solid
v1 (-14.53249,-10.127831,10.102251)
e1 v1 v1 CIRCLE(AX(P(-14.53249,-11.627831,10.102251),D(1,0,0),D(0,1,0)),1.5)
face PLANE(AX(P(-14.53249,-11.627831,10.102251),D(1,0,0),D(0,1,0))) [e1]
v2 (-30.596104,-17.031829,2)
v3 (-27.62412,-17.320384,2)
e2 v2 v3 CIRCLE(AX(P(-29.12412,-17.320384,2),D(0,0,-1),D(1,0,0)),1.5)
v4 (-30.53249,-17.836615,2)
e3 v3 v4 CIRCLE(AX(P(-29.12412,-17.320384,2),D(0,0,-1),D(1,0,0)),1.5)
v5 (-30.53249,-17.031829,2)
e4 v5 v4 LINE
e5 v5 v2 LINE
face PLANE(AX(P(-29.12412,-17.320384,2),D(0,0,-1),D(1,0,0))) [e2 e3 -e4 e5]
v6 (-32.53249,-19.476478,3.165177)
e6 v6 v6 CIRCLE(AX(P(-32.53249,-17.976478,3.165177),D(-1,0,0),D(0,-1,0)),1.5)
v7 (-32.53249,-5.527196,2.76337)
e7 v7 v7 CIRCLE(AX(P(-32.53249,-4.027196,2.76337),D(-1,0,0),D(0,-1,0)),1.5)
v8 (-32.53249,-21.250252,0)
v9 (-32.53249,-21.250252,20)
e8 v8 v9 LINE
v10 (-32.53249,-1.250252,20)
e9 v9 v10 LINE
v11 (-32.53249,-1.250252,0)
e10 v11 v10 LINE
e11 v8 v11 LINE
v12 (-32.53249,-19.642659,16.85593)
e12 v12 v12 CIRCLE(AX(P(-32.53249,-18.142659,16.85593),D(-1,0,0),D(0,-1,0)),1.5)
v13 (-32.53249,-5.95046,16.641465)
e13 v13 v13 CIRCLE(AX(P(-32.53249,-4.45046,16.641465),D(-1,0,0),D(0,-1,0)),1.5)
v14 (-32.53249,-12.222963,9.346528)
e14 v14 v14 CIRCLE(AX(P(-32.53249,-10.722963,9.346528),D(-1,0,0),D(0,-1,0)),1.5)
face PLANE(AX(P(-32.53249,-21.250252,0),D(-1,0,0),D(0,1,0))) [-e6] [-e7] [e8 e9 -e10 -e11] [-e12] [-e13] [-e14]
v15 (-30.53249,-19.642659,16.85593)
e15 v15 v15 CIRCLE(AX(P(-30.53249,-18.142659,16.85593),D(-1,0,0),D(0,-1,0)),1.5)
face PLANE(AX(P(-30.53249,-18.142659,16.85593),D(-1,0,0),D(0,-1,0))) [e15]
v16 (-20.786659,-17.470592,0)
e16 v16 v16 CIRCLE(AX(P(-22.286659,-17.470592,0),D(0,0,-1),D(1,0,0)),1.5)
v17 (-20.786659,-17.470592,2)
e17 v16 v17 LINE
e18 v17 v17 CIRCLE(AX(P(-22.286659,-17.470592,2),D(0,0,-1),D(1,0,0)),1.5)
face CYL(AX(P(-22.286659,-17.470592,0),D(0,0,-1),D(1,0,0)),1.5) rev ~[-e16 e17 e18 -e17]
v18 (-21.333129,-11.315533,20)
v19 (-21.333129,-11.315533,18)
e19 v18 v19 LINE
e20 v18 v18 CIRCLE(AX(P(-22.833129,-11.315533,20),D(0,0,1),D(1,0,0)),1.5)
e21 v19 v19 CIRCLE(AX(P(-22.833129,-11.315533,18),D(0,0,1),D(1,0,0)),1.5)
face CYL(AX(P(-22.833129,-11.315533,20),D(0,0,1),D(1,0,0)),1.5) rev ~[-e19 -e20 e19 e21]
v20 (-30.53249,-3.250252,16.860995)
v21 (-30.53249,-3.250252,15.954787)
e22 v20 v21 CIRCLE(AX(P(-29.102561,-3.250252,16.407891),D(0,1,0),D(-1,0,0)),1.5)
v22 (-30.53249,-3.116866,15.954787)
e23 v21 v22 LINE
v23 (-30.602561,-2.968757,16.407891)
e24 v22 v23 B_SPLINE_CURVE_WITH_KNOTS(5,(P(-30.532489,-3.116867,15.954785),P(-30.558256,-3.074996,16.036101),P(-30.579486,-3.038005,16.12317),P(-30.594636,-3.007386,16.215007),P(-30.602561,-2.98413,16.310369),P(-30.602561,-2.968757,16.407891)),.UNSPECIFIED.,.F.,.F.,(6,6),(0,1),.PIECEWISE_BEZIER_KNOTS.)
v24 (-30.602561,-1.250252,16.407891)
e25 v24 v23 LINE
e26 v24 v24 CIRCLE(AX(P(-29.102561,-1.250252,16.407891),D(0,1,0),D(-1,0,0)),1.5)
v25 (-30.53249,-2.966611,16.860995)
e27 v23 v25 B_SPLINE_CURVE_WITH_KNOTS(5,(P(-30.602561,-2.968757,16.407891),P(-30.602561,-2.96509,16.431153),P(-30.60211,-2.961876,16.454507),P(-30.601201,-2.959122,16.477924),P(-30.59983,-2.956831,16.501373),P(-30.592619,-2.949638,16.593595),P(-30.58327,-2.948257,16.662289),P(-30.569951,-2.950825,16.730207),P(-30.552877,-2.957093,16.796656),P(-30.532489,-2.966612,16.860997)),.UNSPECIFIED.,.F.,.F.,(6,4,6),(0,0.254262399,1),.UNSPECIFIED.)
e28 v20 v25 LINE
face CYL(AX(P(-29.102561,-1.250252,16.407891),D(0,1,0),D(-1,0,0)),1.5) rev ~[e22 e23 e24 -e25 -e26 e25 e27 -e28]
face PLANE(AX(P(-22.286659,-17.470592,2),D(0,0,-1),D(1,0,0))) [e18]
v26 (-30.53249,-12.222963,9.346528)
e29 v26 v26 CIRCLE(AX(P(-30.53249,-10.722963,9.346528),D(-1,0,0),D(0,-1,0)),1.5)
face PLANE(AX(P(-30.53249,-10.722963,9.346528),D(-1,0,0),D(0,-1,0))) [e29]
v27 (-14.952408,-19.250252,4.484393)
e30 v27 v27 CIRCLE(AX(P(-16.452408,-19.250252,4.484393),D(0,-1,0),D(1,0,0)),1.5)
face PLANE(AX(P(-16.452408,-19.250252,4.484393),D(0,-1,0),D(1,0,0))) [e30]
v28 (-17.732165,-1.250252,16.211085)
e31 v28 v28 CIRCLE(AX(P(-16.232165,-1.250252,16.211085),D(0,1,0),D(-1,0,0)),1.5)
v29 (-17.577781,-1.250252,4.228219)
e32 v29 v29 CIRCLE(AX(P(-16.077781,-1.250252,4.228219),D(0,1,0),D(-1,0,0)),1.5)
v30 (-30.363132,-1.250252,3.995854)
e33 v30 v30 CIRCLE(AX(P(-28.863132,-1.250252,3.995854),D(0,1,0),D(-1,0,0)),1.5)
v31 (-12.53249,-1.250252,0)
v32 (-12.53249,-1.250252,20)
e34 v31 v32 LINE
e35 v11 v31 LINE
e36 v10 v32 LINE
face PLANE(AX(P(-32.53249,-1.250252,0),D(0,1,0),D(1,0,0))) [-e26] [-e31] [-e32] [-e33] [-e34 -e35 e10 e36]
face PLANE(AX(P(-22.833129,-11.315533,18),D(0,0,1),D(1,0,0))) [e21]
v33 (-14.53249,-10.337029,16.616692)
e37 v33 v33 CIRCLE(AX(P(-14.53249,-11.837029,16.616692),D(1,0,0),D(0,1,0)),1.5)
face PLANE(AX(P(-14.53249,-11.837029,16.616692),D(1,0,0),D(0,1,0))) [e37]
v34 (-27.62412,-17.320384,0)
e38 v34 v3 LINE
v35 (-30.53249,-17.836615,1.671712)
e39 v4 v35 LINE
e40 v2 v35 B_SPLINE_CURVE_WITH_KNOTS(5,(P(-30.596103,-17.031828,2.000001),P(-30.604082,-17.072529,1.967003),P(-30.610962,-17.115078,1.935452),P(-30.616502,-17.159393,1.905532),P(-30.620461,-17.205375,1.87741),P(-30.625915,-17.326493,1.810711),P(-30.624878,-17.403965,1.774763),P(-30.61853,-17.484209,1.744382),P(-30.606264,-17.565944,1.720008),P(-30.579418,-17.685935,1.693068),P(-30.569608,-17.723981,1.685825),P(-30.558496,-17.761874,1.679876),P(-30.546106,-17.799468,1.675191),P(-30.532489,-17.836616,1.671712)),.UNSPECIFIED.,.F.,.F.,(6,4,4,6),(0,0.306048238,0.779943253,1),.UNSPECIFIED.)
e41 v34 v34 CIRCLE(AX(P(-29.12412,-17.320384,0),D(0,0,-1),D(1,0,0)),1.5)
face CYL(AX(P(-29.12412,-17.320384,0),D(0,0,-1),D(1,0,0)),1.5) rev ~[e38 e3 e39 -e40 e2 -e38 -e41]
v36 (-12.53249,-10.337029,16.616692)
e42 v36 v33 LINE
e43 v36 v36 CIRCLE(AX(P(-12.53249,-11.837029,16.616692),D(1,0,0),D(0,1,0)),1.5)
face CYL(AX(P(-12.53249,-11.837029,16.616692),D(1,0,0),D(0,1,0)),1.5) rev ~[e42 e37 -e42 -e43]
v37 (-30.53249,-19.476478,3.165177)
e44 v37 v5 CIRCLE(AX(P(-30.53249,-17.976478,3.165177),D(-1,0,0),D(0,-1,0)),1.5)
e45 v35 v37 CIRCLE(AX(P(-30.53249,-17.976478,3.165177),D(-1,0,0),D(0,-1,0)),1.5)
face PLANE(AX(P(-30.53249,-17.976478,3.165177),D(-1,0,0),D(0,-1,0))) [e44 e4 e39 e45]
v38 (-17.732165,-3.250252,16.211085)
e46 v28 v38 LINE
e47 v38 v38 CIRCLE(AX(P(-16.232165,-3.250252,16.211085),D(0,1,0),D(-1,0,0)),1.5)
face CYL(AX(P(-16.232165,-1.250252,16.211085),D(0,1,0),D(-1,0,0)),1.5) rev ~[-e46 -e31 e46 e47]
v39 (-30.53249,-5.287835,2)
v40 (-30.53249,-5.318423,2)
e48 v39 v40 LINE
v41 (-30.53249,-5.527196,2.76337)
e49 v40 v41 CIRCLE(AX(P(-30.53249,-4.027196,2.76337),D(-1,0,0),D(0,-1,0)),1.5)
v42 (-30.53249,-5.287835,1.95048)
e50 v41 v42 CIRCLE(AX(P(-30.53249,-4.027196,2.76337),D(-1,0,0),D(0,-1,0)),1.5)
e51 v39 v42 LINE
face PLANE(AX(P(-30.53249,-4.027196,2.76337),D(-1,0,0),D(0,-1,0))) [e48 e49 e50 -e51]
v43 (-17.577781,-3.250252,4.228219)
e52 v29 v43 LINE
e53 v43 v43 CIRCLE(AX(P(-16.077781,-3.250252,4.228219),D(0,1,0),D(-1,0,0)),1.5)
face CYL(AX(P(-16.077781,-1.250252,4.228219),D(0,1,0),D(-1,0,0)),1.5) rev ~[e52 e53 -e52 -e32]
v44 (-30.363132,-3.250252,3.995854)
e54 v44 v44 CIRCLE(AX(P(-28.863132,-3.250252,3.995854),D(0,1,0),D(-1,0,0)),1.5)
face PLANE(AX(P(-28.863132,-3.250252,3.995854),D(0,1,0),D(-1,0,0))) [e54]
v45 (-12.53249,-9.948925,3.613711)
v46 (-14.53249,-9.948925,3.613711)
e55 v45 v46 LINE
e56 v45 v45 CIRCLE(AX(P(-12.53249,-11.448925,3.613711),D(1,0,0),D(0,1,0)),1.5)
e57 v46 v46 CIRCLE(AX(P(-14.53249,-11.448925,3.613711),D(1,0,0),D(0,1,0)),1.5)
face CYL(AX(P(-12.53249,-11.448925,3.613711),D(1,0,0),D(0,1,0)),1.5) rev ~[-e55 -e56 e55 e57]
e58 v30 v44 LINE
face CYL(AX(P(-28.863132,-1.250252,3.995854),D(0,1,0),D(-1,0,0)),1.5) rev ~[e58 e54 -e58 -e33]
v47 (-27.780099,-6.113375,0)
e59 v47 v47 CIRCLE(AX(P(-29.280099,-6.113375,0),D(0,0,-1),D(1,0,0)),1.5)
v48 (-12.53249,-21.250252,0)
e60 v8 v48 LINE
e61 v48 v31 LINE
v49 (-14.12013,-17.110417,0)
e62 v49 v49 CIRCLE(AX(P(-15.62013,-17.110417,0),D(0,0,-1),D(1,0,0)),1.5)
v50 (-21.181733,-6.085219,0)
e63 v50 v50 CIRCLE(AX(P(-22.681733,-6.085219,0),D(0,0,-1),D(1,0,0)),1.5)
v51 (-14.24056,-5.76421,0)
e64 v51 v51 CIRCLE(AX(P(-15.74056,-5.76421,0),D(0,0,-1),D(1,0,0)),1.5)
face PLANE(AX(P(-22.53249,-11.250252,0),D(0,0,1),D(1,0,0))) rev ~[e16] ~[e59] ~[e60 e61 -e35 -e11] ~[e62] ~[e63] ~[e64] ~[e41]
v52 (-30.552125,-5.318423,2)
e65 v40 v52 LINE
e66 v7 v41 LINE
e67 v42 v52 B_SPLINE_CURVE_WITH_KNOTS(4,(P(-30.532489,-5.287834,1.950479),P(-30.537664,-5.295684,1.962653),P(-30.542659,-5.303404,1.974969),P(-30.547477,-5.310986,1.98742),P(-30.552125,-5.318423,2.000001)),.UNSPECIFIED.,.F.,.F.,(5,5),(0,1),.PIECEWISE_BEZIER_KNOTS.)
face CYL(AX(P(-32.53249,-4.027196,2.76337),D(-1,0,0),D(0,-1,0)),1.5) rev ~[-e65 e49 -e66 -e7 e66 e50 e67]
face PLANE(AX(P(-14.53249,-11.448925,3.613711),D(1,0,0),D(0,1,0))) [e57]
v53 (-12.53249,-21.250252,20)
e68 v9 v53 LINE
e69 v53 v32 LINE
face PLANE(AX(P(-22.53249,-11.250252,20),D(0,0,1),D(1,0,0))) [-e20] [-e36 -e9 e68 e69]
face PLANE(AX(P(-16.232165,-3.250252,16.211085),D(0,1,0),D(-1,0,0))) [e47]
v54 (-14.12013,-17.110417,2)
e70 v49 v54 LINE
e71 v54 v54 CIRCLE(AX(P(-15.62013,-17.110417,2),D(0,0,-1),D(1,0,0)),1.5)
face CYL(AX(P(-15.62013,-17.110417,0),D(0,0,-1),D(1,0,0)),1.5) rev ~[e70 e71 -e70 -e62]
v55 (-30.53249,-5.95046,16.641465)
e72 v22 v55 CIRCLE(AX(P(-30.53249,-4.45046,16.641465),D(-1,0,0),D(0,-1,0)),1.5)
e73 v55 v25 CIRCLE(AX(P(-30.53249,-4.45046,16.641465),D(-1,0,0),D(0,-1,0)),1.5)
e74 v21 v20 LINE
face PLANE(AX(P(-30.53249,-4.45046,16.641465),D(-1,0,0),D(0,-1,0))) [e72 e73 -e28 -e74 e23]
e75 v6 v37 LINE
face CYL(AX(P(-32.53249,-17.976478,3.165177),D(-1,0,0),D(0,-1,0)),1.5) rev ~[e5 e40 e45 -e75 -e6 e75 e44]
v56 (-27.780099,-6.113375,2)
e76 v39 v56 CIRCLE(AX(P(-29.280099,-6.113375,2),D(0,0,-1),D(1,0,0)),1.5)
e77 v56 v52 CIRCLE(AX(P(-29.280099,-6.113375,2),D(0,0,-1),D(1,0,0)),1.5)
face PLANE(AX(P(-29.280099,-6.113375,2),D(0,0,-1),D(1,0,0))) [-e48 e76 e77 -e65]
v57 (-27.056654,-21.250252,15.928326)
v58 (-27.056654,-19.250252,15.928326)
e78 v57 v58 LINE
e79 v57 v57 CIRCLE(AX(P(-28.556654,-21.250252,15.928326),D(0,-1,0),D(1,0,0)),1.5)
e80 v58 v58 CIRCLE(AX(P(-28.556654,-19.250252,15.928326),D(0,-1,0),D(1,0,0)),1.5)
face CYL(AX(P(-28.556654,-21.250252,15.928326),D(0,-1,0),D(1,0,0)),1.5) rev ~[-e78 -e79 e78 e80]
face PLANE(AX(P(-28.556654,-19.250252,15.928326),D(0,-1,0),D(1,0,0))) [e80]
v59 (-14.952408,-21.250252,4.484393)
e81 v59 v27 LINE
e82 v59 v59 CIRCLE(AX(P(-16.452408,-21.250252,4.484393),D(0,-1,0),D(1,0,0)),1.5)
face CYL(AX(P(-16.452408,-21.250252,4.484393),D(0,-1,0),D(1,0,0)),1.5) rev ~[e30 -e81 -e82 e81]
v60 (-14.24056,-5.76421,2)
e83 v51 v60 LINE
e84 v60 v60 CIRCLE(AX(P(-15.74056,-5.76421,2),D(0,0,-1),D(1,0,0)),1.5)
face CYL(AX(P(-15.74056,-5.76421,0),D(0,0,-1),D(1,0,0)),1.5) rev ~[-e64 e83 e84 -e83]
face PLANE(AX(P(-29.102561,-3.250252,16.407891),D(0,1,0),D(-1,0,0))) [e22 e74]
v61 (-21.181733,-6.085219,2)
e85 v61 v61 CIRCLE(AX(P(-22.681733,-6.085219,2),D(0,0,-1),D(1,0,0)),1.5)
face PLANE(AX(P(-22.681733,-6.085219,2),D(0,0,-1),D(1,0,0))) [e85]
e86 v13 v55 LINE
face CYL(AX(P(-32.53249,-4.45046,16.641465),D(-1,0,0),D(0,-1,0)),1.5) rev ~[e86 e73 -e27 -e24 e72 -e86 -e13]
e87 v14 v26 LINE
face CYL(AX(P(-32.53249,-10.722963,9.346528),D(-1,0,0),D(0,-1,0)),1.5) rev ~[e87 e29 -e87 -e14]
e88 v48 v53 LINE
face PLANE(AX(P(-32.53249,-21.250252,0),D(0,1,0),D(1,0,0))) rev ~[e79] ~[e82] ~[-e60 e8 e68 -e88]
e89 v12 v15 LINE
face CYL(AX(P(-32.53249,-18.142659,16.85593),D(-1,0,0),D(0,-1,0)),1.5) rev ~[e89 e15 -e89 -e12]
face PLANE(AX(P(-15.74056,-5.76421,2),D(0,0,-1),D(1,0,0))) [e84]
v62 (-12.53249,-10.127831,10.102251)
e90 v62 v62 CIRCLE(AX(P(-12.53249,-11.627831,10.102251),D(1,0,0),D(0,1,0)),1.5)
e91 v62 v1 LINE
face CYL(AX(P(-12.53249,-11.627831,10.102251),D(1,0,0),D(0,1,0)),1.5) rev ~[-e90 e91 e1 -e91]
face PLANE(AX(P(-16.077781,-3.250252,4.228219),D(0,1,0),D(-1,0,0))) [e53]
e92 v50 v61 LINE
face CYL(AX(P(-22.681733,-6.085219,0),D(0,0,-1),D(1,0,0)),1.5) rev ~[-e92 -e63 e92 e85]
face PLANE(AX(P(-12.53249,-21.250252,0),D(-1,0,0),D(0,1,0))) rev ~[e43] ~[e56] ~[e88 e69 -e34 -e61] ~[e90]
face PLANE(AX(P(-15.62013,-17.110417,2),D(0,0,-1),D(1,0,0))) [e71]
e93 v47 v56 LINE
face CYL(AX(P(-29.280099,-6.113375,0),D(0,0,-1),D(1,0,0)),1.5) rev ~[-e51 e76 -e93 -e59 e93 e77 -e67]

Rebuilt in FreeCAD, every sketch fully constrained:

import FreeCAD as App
import Part
import Sketcher

doc = App.newDocument("Part")
body = doc.addObject("PartDesign::Body", "Body")

sketch1 = body.newObject("Sketcher::SketchObject", "Sketch")
sketch1.AttachmentSupport = (doc.getObject("XY_Plane"), [""])
sketch1.MapMode = "FlatFace"
sketch1.addGeometry(Part.LineSegment(App.Vector(-33, -1, 0), App.Vector(-33, -21, 0)), False)
sketch1.addGeometry(Part.LineSegment(App.Vector(-33, -21, 0), App.Vector(-13, -21, 0)), False)
sketch1.addGeometry(Part.LineSegment(App.Vector(-13, -21, 0), App.Vector(-13, -1, 0)), False)
sketch1.addGeometry(Part.LineSegment(App.Vector(-13, -1, 0), App.Vector(-33, -1, 0)), False)
sketch1.addConstraint(Sketcher.Constraint("Coincident", 0, 2, 1, 1))
sketch1.addConstraint(Sketcher.Constraint("Coincident", 1, 2, 2, 1))
sketch1.addConstraint(Sketcher.Constraint("Coincident", 2, 2, 3, 1))
sketch1.addConstraint(Sketcher.Constraint("Coincident", 3, 2, 0, 1))
sketch1.addConstraint(Sketcher.Constraint("Vertical", 0))
sketch1.addConstraint(Sketcher.Constraint("Horizontal", 1))
sketch1.addConstraint(Sketcher.Constraint("Vertical", 2))
sketch1.addConstraint(Sketcher.Constraint("Horizontal", 3))
sketch1.addConstraint(Sketcher.Constraint("Equal", 3, 0))
sketch1.addConstraint(Sketcher.Constraint("DistanceX", 1, 1, 1, 2, 20.0))
sketch1.addConstraint(Sketcher.Constraint("DistanceX", 0, 2, -1, 1, 32.53249))
sketch1.addConstraint(Sketcher.Constraint("DistanceY", 0, 2, -1, 1, 21.250252))
pad1 = body.newObject("PartDesign::Pad", "Pad")
pad1.Profile = sketch1
pad1.Length = 20

sketch2 = body.newObject("Sketcher::SketchObject", "Sketch001")
sketch2.AttachmentSupport = (doc.getObject("XY_Plane"), [""])
sketch2.MapMode = "FlatFace"
sketch2.AttachmentOffset = App.Placement(App.Vector(0, 0, 20), App.Rotation())
sketch2.addGeometry(Part.Circle(App.Vector(-22.8, -11.3, 0), App.Vector(0, 0, 1), 1.5), False)
sketch2.addConstraint(Sketcher.Constraint("Diameter", 0, 3.0))
sketch2.addConstraint(Sketcher.Constraint("DistanceX", 0, 3, -1, 1, 22.833129))
sketch2.addConstraint(Sketcher.Constraint("DistanceY", 0, 3, -1, 1, 11.315533))
pocket1 = body.newObject("PartDesign::Pocket", "Pocket")
pocket1.Profile = sketch2
pocket1.Length = 2

sketch3 = body.newObject("Sketcher::SketchObject", "Sketch002")
sketch3.AttachmentSupport = (doc.getObject("XZ_Plane"), [""])
sketch3.MapMode = "FlatFace"
sketch3.AttachmentOffset = App.Placement(App.Vector(0, 0, 21.250252), App.Rotation())
sketch3.addGeometry(Part.Circle(App.Vector(-28.6, 15.9, 0), App.Vector(0, 0, 1), 1.5), False)
sketch3.addGeometry(Part.Circle(App.Vector(-16.5, 4.5, 0), App.Vector(0, 0, 1), 1.5), False)
sketch3.addConstraint(Sketcher.Constraint("Equal", 0, 1))
sketch3.addConstraint(Sketcher.Constraint("Diameter", 0, 3.0))
sketch3.addConstraint(Sketcher.Constraint("DistanceX", 0, 3, -1, 1, 28.556654))
sketch3.addConstraint(Sketcher.Constraint("DistanceY", -1, 1, 0, 3, 15.928326))
sketch3.addConstraint(Sketcher.Constraint("DistanceX", 1, 3, -1, 1, 16.452408))
sketch3.addConstraint(Sketcher.Constraint("DistanceY", -1, 1, 1, 3, 4.484393))
pocket2 = body.newObject("PartDesign::Pocket", "Pocket001")
pocket2.Profile = sketch3
pocket2.Length = 2

sketch4 = body.newObject("Sketcher::SketchObject", "Sketch003")
sketch4.AttachmentSupport = (doc.getObject("YZ_Plane"), [""])
sketch4.MapMode = "FlatFace"
sketch4.AttachmentOffset = App.Placement(App.Vector(0, 0, -12.53249), App.Rotation())
sketch4.addGeometry(Part.Circle(App.Vector(-11.8, 16.6, 0), App.Vector(0, 0, 1), 1.5), False)
sketch4.addGeometry(Part.Circle(App.Vector(-11.4, 3.6, 0), App.Vector(0, 0, 1), 1.5), False)
sketch4.addGeometry(Part.Circle(App.Vector(-11.6, 10.1, 0), App.Vector(0, 0, 1), 1.5), False)
sketch4.addConstraint(Sketcher.Constraint("Equal", 0, 1))
sketch4.addConstraint(Sketcher.Constraint("Equal", 1, 2))
sketch4.addConstraint(Sketcher.Constraint("Diameter", 0, 3.0))
sketch4.addConstraint(Sketcher.Constraint("DistanceX", 0, 3, -1, 1, 11.837029))
sketch4.addConstraint(Sketcher.Constraint("DistanceY", -1, 1, 1, 3, 3.613711))
sketch4.addConstraint(Sketcher.Constraint("DistanceX", 2, 3, -1, 1, 11.627831))
sketch4.addConstraint(Sketcher.Constraint("DistanceY", -1, 1, 2, 3, 10.102251))
sketch4.addConstraint(Sketcher.Constraint("DistanceY", 1, 3, 0, 3, 13.002981))
sketch4.addConstraint(Sketcher.Constraint("DistanceX", 1, 3, -1, 1, 11.448925))
pocket3 = body.newObject("PartDesign::Pocket", "Pocket002")
pocket3.Profile = sketch4
pocket3.Length = 2

sketch5 = body.newObject("Sketcher::SketchObject", "Sketch004")
sketch5.AttachmentSupport = (doc.getObject("XZ_Plane"), [""])
sketch5.MapMode = "FlatFace"
sketch5.AttachmentOffset = App.Placement(App.Vector(0, 0, 1.250252), App.Rotation())
sketch5.addGeometry(Part.Circle(App.Vector(-16.2, 16.2, 0), App.Vector(0, 0, 1), 1.5), False)
sketch5.addGeometry(Part.Circle(App.Vector(-29.1, 16.4, 0), App.Vector(0, 0, 1), 1.5), False)
sketch5.addGeometry(Part.Circle(App.Vector(-28.9, 4, 0), App.Vector(0, 0, 1), 1.5), False)
sketch5.addGeometry(Part.Circle(App.Vector(-16.1, 4.2, 0), App.Vector(0, 0, 1), 1.5), False)
sketch5.addConstraint(Sketcher.Constraint("Equal", 0, 1))
sketch5.addConstraint(Sketcher.Constraint("Equal", 1, 2))
sketch5.addConstraint(Sketcher.Constraint("Equal", 2, 3))
sketch5.addConstraint(Sketcher.Constraint("Diameter", 0, 3.0))
sketch5.addConstraint(Sketcher.Constraint("DistanceX", 1, 3, -1, 1, 29.102561))
sketch5.addConstraint(Sketcher.Constraint("DistanceY", -1, 1, 1, 3, 16.407891))
sketch5.addConstraint(Sketcher.Constraint("DistanceX", 2, 3, -1, 1, 28.863132))
sketch5.addConstraint(Sketcher.Constraint("DistanceX", 3, 3, -1, 1, 16.077781))
sketch5.addConstraint(Sketcher.Constraint("DistanceY", -1, 1, 3, 3, 4.228219))
sketch5.addConstraint(Sketcher.Constraint("DistanceY", 2, 3, 0, 3, 12.215231))
sketch5.addConstraint(Sketcher.Constraint("DistanceX", 0, 3, -1, 1, 16.232165))
sketch5.addConstraint(Sketcher.Constraint("DistanceY", -1, 1, 0, 3, 16.211085))
pocket4 = body.newObject("PartDesign::Pocket", "Pocket003")
pocket4.Profile = sketch5
pocket4.Length = 2
pocket4.Reversed = True

sketch6 = body.newObject("Sketcher::SketchObject", "Sketch005")
sketch6.AttachmentSupport = (doc.getObject("YZ_Plane"), [""])
sketch6.MapMode = "FlatFace"
sketch6.AttachmentOffset = App.Placement(App.Vector(0, 0, -32.53249), App.Rotation())
sketch6.addGeometry(Part.Circle(App.Vector(-18.1, 16.9, 0), App.Vector(0, 0, 1), 1.5), False)
sketch6.addGeometry(Part.Circle(App.Vector(-18, 3.2, 0), App.Vector(0, 0, 1), 1.5), False)
sketch6.addGeometry(Part.Circle(App.Vector(-4.5, 16.6, 0), App.Vector(0, 0, 1), 1.5), False)
sketch6.addGeometry(Part.Circle(App.Vector(-10.7, 9.3, 0), App.Vector(0, 0, 1), 1.5), False)
sketch6.addGeometry(Part.Circle(App.Vector(-4, 2.8, 0), App.Vector(0, 0, 1), 1.5), False)
sketch6.addConstraint(Sketcher.Constraint("Equal", 0, 1))
sketch6.addConstraint(Sketcher.Constraint("Equal", 1, 2))
sketch6.addConstraint(Sketcher.Constraint("Equal", 2, 3))
sketch6.addConstraint(Sketcher.Constraint("Equal", 3, 4))
sketch6.addConstraint(Sketcher.Constraint("Diameter", 0, 3.0))
sketch6.addConstraint(Sketcher.Constraint("DistanceX", 0, 3, 2, 3, 13.692199))
sketch6.addConstraint(Sketcher.Constraint("DistanceX", 0, 3, -1, 1, 18.142659))
sketch6.addConstraint(Sketcher.Constraint("DistanceY", -1, 1, 0, 3, 16.85593))
sketch6.addConstraint(Sketcher.Constraint("DistanceX", 1, 3, -1, 1, 17.976478))
sketch6.addConstraint(Sketcher.Constraint("DistanceY", -1, 1, 4, 3, 2.76337))
sketch6.addConstraint(Sketcher.Constraint("DistanceY", 1, 3, 3, 3, 6.181351))
sketch6.addConstraint(Sketcher.Constraint("DistanceY", -1, 1, 1, 3, 3.165177))
sketch6.addConstraint(Sketcher.Constraint("DistanceY", -1, 1, 2, 3, 16.641465))
sketch6.addConstraint(Sketcher.Constraint("DistanceX", 3, 3, -1, 1, 10.722963))
sketch6.addConstraint(Sketcher.Constraint("DistanceX", 4, 3, -1, 1, 4.027196))
pocket5 = body.newObject("PartDesign::Pocket", "Pocket004")
pocket5.Profile = sketch6
pocket5.Length = 2
pocket5.Reversed = True

sketch7 = body.newObject("Sketcher::SketchObject", "Sketch006")
sketch7.AttachmentSupport = (doc.getObject("XY_Plane"), [""])
sketch7.MapMode = "FlatFace"
sketch7.addGeometry(Part.Circle(App.Vector(-15.6, -17.1, 0), App.Vector(0, 0, 1), 1.5), False)
sketch7.addGeometry(Part.Circle(App.Vector(-22.3, -17.5, 0), App.Vector(0, 0, 1), 1.5), False)
sketch7.addGeometry(Part.Circle(App.Vector(-29.1, -17.3, 0), App.Vector(0, 0, 1), 1.5), False)
sketch7.addGeometry(Part.Circle(App.Vector(-29.3, -6.1, 0), App.Vector(0, 0, 1), 1.5), False)
sketch7.addGeometry(Part.Circle(App.Vector(-22.7, -6.1, 0), App.Vector(0, 0, 1), 1.5), False)
sketch7.addGeometry(Part.Circle(App.Vector(-15.7, -5.8, 0), App.Vector(0, 0, 1), 1.5), False)
sketch7.addConstraint(Sketcher.Constraint("Equal", 0, 1))
sketch7.addConstraint(Sketcher.Constraint("Equal", 1, 2))
sketch7.addConstraint(Sketcher.Constraint("Equal", 2, 3))
sketch7.addConstraint(Sketcher.Constraint("Equal", 3, 4))
sketch7.addConstraint(Sketcher.Constraint("Equal", 4, 5))
sketch7.addConstraint(Sketcher.Constraint("Diameter", 0, 3.0))
sketch7.addConstraint(Sketcher.Constraint("DistanceX", 3, 3, -1, 1, 29.280099))
sketch7.addConstraint(Sketcher.Constraint("DistanceY", 0, 3, 4, 3, 11.025198))
sketch7.addConstraint(Sketcher.Constraint("DistanceX", 1, 3, 5, 3, 6.546099))
sketch7.addConstraint(Sketcher.Constraint("DistanceX", 0, 3, -1, 1, 15.62013))
sketch7.addConstraint(Sketcher.Constraint("DistanceX", 1, 3, -1, 1, 22.286659))
sketch7.addConstraint(Sketcher.Constraint("DistanceY", 1, 3, -1, 1, 17.470592))
sketch7.addConstraint(Sketcher.Constraint("DistanceX", 2, 3, -1, 1, 29.12412))
sketch7.addConstraint(Sketcher.Constraint("DistanceY", 4, 3, -1, 1, 6.085219))
sketch7.addConstraint(Sketcher.Constraint("DistanceY", 5, 3, -1, 1, 5.76421))
sketch7.addConstraint(Sketcher.Constraint("DistanceY", 2, 3, 3, 3, 11.207009))
sketch7.addConstraint(Sketcher.Constraint("DistanceY", 2, 3, -1, 1, 17.320384))
sketch7.addConstraint(Sketcher.Constraint("DistanceX", 4, 3, -1, 1, 22.681733))
pocket6 = body.newObject("PartDesign::Pocket", "Pocket005")
pocket6.Profile = sketch7
pocket6.Length = 2
pocket6.Reversed = True

doc.recompute()
